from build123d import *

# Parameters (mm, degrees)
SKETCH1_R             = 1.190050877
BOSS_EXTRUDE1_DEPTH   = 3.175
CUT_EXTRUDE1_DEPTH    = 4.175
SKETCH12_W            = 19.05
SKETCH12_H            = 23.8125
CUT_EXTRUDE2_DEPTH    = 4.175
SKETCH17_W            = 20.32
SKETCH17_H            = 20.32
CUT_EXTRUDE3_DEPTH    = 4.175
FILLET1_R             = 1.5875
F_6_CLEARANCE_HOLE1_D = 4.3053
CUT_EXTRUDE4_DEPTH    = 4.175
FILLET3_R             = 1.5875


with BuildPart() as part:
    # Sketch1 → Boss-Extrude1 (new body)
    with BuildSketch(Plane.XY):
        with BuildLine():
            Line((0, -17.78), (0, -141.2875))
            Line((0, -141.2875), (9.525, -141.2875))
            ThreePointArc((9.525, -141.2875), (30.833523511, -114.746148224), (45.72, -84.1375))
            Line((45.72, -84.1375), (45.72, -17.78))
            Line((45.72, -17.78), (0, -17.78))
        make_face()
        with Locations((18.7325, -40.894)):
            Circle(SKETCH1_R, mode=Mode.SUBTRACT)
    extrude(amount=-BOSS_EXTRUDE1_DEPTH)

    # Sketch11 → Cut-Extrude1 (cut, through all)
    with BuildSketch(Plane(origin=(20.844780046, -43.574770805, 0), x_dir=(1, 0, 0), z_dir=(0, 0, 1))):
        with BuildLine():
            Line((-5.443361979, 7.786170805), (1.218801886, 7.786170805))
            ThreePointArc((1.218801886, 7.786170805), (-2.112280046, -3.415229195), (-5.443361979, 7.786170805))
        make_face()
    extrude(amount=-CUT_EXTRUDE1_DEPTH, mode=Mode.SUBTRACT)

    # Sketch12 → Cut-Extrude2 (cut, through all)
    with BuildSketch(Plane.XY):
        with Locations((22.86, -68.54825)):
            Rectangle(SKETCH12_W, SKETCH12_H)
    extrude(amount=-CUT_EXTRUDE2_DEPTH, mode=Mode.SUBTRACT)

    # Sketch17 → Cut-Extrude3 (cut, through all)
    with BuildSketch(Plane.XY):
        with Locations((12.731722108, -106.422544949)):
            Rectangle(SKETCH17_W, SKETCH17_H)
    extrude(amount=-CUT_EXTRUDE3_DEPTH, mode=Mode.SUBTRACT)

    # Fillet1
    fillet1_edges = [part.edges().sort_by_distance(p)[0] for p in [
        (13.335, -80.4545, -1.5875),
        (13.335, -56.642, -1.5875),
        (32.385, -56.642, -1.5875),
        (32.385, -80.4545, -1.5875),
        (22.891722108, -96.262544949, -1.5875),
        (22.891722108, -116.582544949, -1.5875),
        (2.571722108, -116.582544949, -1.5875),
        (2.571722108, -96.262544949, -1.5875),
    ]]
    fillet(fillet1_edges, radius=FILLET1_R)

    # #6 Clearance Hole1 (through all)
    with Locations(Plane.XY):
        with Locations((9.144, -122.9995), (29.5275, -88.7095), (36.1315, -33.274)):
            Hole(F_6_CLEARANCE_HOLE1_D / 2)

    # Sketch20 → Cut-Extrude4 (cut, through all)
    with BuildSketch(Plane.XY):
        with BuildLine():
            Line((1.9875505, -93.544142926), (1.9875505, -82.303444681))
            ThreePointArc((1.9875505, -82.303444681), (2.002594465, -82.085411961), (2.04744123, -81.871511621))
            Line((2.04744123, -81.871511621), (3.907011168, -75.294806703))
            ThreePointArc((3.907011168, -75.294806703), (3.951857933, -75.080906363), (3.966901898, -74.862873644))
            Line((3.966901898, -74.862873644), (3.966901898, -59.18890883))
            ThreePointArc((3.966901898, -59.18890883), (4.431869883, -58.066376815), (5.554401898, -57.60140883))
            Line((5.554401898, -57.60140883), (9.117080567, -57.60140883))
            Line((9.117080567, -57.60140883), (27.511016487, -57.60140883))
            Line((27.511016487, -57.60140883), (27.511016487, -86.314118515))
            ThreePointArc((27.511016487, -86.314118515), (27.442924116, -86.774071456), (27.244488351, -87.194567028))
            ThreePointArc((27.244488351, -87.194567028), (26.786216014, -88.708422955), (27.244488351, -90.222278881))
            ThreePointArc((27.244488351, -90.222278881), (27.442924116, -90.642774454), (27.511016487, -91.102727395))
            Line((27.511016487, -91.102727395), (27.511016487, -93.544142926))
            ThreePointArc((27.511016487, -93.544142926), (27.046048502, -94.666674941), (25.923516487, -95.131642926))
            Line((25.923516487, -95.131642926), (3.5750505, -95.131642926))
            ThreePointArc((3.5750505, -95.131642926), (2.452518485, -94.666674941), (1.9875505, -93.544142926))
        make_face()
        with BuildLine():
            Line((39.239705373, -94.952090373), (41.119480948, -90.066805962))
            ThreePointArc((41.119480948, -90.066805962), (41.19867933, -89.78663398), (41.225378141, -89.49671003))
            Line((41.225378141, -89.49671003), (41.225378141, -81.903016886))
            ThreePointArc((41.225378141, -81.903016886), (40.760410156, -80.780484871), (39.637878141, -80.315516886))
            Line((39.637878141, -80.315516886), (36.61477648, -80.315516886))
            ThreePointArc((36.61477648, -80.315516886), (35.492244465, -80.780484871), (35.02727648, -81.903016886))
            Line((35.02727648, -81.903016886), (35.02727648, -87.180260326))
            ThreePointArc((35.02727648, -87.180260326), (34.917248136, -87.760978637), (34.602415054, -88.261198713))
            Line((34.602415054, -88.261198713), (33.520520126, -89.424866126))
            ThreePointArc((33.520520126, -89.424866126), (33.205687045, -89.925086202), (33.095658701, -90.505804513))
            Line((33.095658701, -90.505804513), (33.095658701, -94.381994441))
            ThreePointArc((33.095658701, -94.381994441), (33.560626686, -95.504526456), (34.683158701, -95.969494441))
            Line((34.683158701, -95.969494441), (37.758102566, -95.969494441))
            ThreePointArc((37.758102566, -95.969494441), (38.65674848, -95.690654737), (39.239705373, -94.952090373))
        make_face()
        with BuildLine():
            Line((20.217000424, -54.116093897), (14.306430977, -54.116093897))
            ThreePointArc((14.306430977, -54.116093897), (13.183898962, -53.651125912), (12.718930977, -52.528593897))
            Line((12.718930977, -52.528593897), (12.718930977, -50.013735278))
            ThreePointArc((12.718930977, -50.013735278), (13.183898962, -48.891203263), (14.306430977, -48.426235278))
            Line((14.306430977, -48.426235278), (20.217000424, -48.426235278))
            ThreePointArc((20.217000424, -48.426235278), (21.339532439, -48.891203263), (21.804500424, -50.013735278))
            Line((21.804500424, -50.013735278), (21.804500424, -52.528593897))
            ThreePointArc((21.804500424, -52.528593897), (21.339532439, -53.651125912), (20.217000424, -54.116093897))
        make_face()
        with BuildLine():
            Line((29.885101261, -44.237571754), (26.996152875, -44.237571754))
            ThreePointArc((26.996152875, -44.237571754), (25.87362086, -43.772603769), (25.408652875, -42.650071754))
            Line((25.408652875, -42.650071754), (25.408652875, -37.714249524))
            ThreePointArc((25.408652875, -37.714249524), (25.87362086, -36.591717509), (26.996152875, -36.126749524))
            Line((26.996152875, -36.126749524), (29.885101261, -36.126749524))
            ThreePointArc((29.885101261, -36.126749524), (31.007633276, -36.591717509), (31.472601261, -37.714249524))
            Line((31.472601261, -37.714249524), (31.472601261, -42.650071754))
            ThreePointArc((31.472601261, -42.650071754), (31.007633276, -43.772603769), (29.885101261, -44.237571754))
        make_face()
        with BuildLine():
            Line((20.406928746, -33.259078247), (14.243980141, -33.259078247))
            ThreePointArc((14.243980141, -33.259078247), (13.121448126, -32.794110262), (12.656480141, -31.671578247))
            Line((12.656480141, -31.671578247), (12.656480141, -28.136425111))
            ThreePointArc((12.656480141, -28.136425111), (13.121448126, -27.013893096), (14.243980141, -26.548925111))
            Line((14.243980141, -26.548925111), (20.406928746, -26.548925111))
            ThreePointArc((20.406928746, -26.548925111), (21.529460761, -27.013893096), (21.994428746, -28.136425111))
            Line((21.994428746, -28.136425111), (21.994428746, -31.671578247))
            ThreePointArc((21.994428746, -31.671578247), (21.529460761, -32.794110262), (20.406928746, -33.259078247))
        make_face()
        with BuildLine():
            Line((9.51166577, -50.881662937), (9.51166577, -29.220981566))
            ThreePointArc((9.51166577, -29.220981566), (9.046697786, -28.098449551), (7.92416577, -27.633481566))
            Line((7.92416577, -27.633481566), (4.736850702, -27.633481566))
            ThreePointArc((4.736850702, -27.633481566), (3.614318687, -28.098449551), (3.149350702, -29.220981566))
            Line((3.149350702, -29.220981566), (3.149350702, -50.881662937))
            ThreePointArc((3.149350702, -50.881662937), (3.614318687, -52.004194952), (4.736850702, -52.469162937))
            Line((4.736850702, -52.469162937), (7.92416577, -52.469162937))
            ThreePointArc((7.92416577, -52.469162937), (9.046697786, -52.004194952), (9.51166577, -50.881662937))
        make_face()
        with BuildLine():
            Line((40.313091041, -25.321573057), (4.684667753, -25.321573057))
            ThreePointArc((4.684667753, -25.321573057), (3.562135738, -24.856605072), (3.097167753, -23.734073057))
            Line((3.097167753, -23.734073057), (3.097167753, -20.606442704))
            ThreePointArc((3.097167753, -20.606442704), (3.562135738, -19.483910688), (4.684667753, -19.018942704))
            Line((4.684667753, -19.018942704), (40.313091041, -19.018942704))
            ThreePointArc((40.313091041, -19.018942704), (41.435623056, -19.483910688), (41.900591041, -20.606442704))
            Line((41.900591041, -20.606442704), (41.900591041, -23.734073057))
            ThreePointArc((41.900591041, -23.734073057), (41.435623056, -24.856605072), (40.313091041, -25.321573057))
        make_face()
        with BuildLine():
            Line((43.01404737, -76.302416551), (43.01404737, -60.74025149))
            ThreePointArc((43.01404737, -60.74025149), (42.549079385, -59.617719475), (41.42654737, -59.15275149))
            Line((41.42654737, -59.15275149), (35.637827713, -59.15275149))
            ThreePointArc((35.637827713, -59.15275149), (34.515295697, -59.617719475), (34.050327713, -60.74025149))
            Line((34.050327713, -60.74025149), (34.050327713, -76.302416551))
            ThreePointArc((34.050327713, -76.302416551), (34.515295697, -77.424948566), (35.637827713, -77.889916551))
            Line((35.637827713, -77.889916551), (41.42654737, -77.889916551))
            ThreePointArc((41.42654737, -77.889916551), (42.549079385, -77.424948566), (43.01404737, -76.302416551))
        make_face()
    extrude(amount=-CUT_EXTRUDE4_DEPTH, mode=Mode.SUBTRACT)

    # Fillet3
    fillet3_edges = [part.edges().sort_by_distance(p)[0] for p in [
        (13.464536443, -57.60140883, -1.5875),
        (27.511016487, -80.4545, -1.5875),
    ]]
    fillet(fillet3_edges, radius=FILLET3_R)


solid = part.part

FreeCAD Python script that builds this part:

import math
import FreeCAD as App
import Part
import Sketcher

V = App.Vector
Q = App.Units.Quantity


def edges_at(feature, points):
    """Names of the edges that pass closest to the given points."""
    edges = feature.Shape.Edges
    near = lambda p: min(range(len(edges)), key=lambda i: edges[i].distToShape(Part.Vertex(*p))[0])
    return sorted({f"Edge{near(p) + 1}" for p in points})

doc = App.newDocument("Part")
params = doc.addObject("Spreadsheet::Sheet", "Params")
for row, (alias, value) in enumerate([
    ("sketch1_radius", "6 in"),
    ("sketch1_width", "1.8 in"),
    ("sketch1_width2", "0.375 in"),
    ("pad1_length", "0.125 in"),
    ("sketch2_radius", "0.24 in"),
    ("sketch3_width", "0.75 in"),
    ("sketch3_height", "0.9375 in"),
    ("sketch4_width", "0.8 in"),
    ("fillet_radius", "0.0625 in"),
    ("hole_diameter", "0.1695 in"),
    ("sketch6_radius", "0.0625 in"),
    ("fillet2_radius", "0.0625 in"),
], start=1):
    params.set(f"A{row}", alias)
    params.set(f"B{row}", "=" + value)
    params.setAlias(f"B{row}", alias)

body = doc.addObject("PartDesign::Body", "Body")

# Sketch on XY plane
sketch1 = body.newObject("Sketcher::SketchObject", "Sketch")
sketch1.AttachmentSupport = (doc.getObject("XY_Plane"), [""])
sketch1.MapMode = "FlatFace"
sketch1.addGeometry(Part.LineSegment(V(0, -17.8, 0), V(0, -141.3, 0)), False)
sketch1.addGeometry(Part.LineSegment(V(0, -141.3, 0), V(9.5, -141.3, 0)), False)
sketch1.addGeometry(Part.ArcOfCircle(Part.Circle(V(-97.9, -33.2, 0), V(0, 0, 1), 152.4), math.radians(-45), math.radians(-20)), False)
sketch1.addGeometry(Part.LineSegment(V(45.7, -84.1, 0), V(45.7, -17.8, 0)), False)
sketch1.addGeometry(Part.LineSegment(V(45.7, -17.8, 0), V(0, -17.8, 0)), False)
sketch1.addGeometry(Part.Circle(V(18.7, -40.9, 0), V(0, 0, 1), 1.2), False)
sketch1.addConstraint(Sketcher.Constraint("Coincident", 0, 2, 1, 1))
sketch1.addConstraint(Sketcher.Constraint("Coincident", 1, 2, 2, 1))
sketch1.addConstraint(Sketcher.Constraint("Coincident", 2, 2, 3, 1))
sketch1.addConstraint(Sketcher.Constraint("Coincident", 3, 2, 4, 1))
sketch1.addConstraint(Sketcher.Constraint("Coincident", 4, 2, 0, 1))
sketch1.addConstraint(Sketcher.Constraint("Vertical", 0))
sketch1.addConstraint(Sketcher.Constraint("Horizontal", 1))
sketch1.addConstraint(Sketcher.Constraint("Vertical", 3))
sketch1.addConstraint(Sketcher.Constraint("Horizontal", 4))
sketch1.addConstraint(Sketcher.Constraint("PointOnObject", 0, 2, -2))
sketch1.addConstraint(Sketcher.Constraint("Radius", 2, Q("6 in")))
sketch1.addConstraint(Sketcher.Constraint("DistanceX", 4, 2, 4, 1, Q("1.8 in")))
sketch1.addConstraint(Sketcher.Constraint("DistanceY", 3, 2, -1, 1, Q("0.7 in")))
sketch1.addConstraint(Sketcher.Constraint("Diameter", 5, 2.380102))
sketch1.addConstraint(Sketcher.Constraint("DistanceX", 1, 1, 1, 2, Q("0.375 in")))
sketch1.addConstraint(Sketcher.Constraint("DistanceY", 5, 3, -1, 1, Q("1.61 in")))
sketch1.addConstraint(Sketcher.Constraint("DistanceY", 1, 2, 2, 2, Q("2.25 in")))
sketch1.addConstraint(Sketcher.Constraint("DistanceY", 0, 2, 0, 1, Q("4.8625 in")))
sketch1.addConstraint(Sketcher.Constraint("DistanceX", 5, 3, 2, 2, Q("1.0625 in")))
sketch1.setExpression("Constraints[10]", "Params.sketch1_radius")
sketch1.setExpression("Constraints[11]", "Params.sketch1_width")
sketch1.setExpression("Constraints[14]", "Params.sketch1_width2")
pad1 = body.newObject("PartDesign::Pad", "Pad")
pad1.Profile = sketch1
pad1.setExpression("Length", "Params.pad1_length")
pad1.Reversed = True

# Sketch on XY plane
sketch2 = body.newObject("Sketcher::SketchObject", "Sketch001")
sketch2.AttachmentSupport = (doc.getObject("XY_Plane"), [""])
sketch2.MapMode = "FlatFace"
sketch2.addGeometry(Part.LineSegment(V(22, -36, 0), V(15, -36, 0)), False)
sketch2.addGeometry(Part.ArcOfCircle(Part.Circle(V(19, -41, 0), V(0, 0, 1), 6), math.radians(123), math.radians(417)), False)
sketch2.addConstraint(Sketcher.Constraint("Coincident", 0, 1, 1, 2))
sketch2.addConstraint(Sketcher.Constraint("Coincident", 1, 1, 0, 2))
sketch2.addConstraint(Sketcher.Constraint("Horizontal", 0))
sketch2.addConstraint(Sketcher.Constraint("Radius", 1, Q("0.24 in")))
sketch2.addConstraint(Sketcher.Constraint("DistanceY", 1, 3, -1, 1, Q("1.61 in")))
sketch2.addConstraint(Sketcher.Constraint("DistanceY", 0, 1, -1, 1, Q("1.409 in")))
sketch2.addConstraint(Sketcher.Constraint("DistanceX", -1, 1, 1, 3, Q("0.7375 in")))
sketch2.setExpression("Constraints[3]", "Params.sketch2_radius")
pocket1 = body.newObject("PartDesign::Pocket", "Pocket")
pocket1.Profile = sketch2
pocket1.Type = "ThroughAll"

# Sketch on XY plane
sketch3 = body.newObject("Sketcher::SketchObject", "Sketch002")
sketch3.AttachmentSupport = (doc.getObject("XY_Plane"), [""])
sketch3.MapMode = "FlatFace"
sketch3.addGeometry(Part.LineSegment(V(13, -57, 0), V(13, -80, 0)), False)
sketch3.addGeometry(Part.LineSegment(V(13, -80, 0), V(32, -80, 0)), False)
sketch3.addGeometry(Part.LineSegment(V(32, -80, 0), V(32, -57, 0)), False)
sketch3.addGeometry(Part.LineSegment(V(32, -57, 0), V(13, -57, 0)), False)
sketch3.addConstraint(Sketcher.Constraint("Coincident", 0, 2, 1, 1))
sketch3.addConstraint(Sketcher.Constraint("Coincident", 1, 2, 2, 1))
sketch3.addConstraint(Sketcher.Constraint("Coincident", 2, 2, 3, 1))
sketch3.addConstraint(Sketcher.Constraint("Coincident", 3, 2, 0, 1))
sketch3.addConstraint(Sketcher.Constraint("Vertical", 0))
sketch3.addConstraint(Sketcher.Constraint("Horizontal", 1))
sketch3.addConstraint(Sketcher.Constraint("Vertical", 2))
sketch3.addConstraint(Sketcher.Constraint("Horizontal", 3))
sketch3.addConstraint(Sketcher.Constraint("DistanceX", 1, 1, 1, 2, Q("0.75 in")))
sketch3.addConstraint(Sketcher.Constraint("DistanceY", 0, 2, 0, 1, Q("0.9375 in")))
sketch3.addConstraint(Sketcher.Constraint("DistanceY", 2, 2, -1, 1, Q("2.23 in")))
sketch3.addConstraint(Sketcher.Constraint("DistanceX", -1, 1, 0, 2, Q("0.525 in")))
sketch3.setExpression("Constraints[8]", "Params.sketch3_width")
sketch3.setExpression("Constraints[9]", "Params.sketch3_height")
pocket2 = body.newObject("PartDesign::Pocket", "Pocket001")
pocket2.Profile = sketch3
pocket2.Type = "ThroughAll"

# Sketch on XY plane
sketch4 = body.newObject("Sketcher::SketchObject", "Sketch003")
sketch4.AttachmentSupport = (doc.getObject("XY_Plane"), [""])
sketch4.MapMode = "FlatFace"
sketch4.addGeometry(Part.LineSegment(V(3, -96, 0), V(3, -117, 0)), False)
sketch4.addGeometry(Part.LineSegment(V(3, -117, 0), V(23, -117, 0)), False)
sketch4.addGeometry(Part.LineSegment(V(23, -117, 0), V(23, -96, 0)), False)
sketch4.addGeometry(Part.LineSegment(V(23, -96, 0), V(3, -96, 0)), False)
sketch4.addConstraint(Sketcher.Constraint("Coincident", 0, 2, 1, 1))
sketch4.addConstraint(Sketcher.Constraint("Coincident", 1, 2, 2, 1))
sketch4.addConstraint(Sketcher.Constraint("Coincident", 2, 2, 3, 1))
sketch4.addConstraint(Sketcher.Constraint("Coincident", 3, 2, 0, 1))
sketch4.addConstraint(Sketcher.Constraint("Vertical", 0))
sketch4.addConstraint(Sketcher.Constraint("Horizontal", 1))
sketch4.addConstraint(Sketcher.Constraint("Vertical", 2))
sketch4.addConstraint(Sketcher.Constraint("Horizontal", 3))
sketch4.addConstraint(Sketcher.Constraint("Equal", 3, 0))
sketch4.addConstraint(Sketcher.Constraint("DistanceX", 1, 1, 1, 2, Q("0.8 in")))
sketch4.addConstraint(Sketcher.Constraint("DistanceX", -1, 1, 0, 2, 2.571722))
sketch4.addConstraint(Sketcher.Constraint("DistanceY", 0, 2, -1, 1, 116.582545))
sketch4.setExpression("Constraints[9]", "Params.sketch4_width")
pocket3 = body.newObject("PartDesign::Pocket", "Pocket002")
pocket3.Profile = sketch4
pocket3.Type = "ThroughAll"
doc.recompute()

fillet = body.newObject("PartDesign::Fillet", "Fillet")
fillet.Base = (pocket3, edges_at(pocket3, [
    (13.335, -80.454, -1.587),
    (13.335, -56.642, -1.587),
    (32.385, -56.642, -1.587),
    (32.385, -80.454, -1.587),
    (22.892, -96.263, -1.587),
    (22.892, -116.583, -1.587),
    (2.572, -116.583, -1.587),
    (2.572, -96.263, -1.587),
]))
fillet.setExpression("Radius", "Params.fillet_radius")

# Sketch on XY plane
sketch5 = body.newObject("Sketcher::SketchObject", "Sketch004")
sketch5.AttachmentSupport = (doc.getObject("XY_Plane"), [""])
sketch5.MapMode = "FlatFace"
sketch5.addGeometry(Part.Circle(V(9.1, -123, 0), V(0, 0, 1), 2.2), False)
sketch5.addGeometry(Part.Circle(V(29.5, -88.7, 0), V(0, 0, 1), 2.2), False)
sketch5.addGeometry(Part.Circle(V(36.1, -33.3, 0), V(0, 0, 1), 2.2), False)
sketch5.addConstraint(Sketcher.Constraint("Equal", 0, 1))
sketch5.addConstraint(Sketcher.Constraint("Equal", 1, 2))
sketch5.addConstraint(Sketcher.Constraint("Diameter", 0, Q("0.1695 in")))
sketch5.addConstraint(Sketcher.Constraint("DistanceX", -1, 1, 0, 3, Q("0.36 in")))
sketch5.addConstraint(Sketcher.Constraint("DistanceY", 2, 3, -1, 1, Q("1.31 in")))
sketch5.addConstraint(Sketcher.Constraint("DistanceY", 0, 3, 1, 3, Q("1.35 in")))
sketch5.addConstraint(Sketcher.Constraint("DistanceX", 1, 3, 2, 3, Q("0.26 in")))
sketch5.addConstraint(Sketcher.Constraint("DistanceX", 0, 3, 2, 3, Q("1.0625 in")))
sketch5.addConstraint(Sketcher.Constraint("DistanceY", 0, 3, -1, 1, Q("4.8425 in")))
doc.recompute()
hole = body.newObject("PartDesign::Hole", "Hole")
hole.Profile = sketch5
hole.ThreadType = "None"
hole.setExpression("Diameter", "Params.hole_diameter")
hole.DepthType = "ThroughAll"

# Sketch on XY plane
sketch6 = body.newObject("Sketcher::SketchObject", "Sketch005")
sketch6.AttachmentSupport = (doc.getObject("XY_Plane"), [""])
sketch6.MapMode = "FlatFace"
sketch6.addGeometry(Part.LineSegment(V(1.99, -82.3, 0), V(1.99, -93.54, 0)), False)
sketch6.addGeometry(Part.ArcOfCircle(Part.Circle(V(3.58, -93.54, 0), V(0, 0, 1), 1.59), math.radians(180), math.radians(270)), False)
sketch6.addGeometry(Part.LineSegment(V(3.58, -95.13, 0), V(25.92, -95.13, 0)), False)
sketch6.addGeometry(Part.ArcOfCircle(Part.Circle(V(25.92, -93.54, 0), V(0, 0, 1), 1.59), math.radians(-90), math.radians(0)), False)
sketch6.addGeometry(Part.LineSegment(V(27.51, -93.54, 0), V(27.51, -91.1, 0)), False)
sketch6.addGeometry(Part.ArcOfCircle(Part.Circle(V(25.92, -91.1, 0), V(0, 0, 1), 1.59), math.radians(0), math.radians(34)), False)
sketch6.addGeometry(Part.ArcOfCircle(Part.Circle(V(29.52, -88.71, 0), V(0, 0, 1), 2.73), math.radians(146), math.radians(214)), False)
sketch6.addGeometry(Part.ArcOfCircle(Part.Circle(V(25.92, -86.31, 0), V(0, 0, 1), 1.59), math.radians(-34), math.radians(0)), False)
sketch6.addGeometry(Part.LineSegment(V(27.51, -86.31, 0), V(27.51, -57.6, 0)), False)
sketch6.addGeometry(Part.LineSegment(V(27.51, -57.6, 0), V(5.55, -57.6, 0)), False)
sketch6.addGeometry(Part.ArcOfCircle(Part.Circle(V(5.55, -59.19, 0), V(0, 0, 1), 1.59), math.radians(90), math.radians(180)), False)
sketch6.addGeometry(Part.LineSegment(V(3.97, -59.19, 0), V(3.97, -74.86, 0)), False)
sketch6.addGeometry(Part.ArcOfCircle(Part.Circle(V(2.38, -74.86, 0), V(0, 0, 1), 1.59), math.radians(-15.79), math.radians(0)), False)
sketch6.addGeometry(Part.LineSegment(V(3.91, -75.29, 0), V(2.05, -81.87, 0)), False)
sketch6.addGeometry(Part.ArcOfCircle(Part.Circle(V(3.58, -82.3, 0), V(0, 0, 1), 1.59), math.radians(164.21), math.radians(180)), False)
sketch6.addGeometry(Part.LineSegment(V(39.24, -94.95, 0), V(41.12, -90.07, 0)), False)
sketch6.addGeometry(Part.ArcOfCircle(Part.Circle(V(39.64, -89.5, 0), V(0, 0, 1), 1.59), math.radians(-21), math.radians(0)), False)
sketch6.addGeometry(Part.LineSegment(V(41.23, -89.5, 0), V(41.23, -81.9, 0)), False)
sketch6.addGeometry(Part.ArcOfCircle(Part.Circle(V(39.64, -81.9, 0), V(0, 0, 1), 1.59), math.radians(0), math.radians(90)), False)
sketch6.addGeometry(Part.LineSegment(V(39.64, -80.32, 0), V(36.61, -80.32, 0)), False)
sketch6.addGeometry(Part.ArcOfCircle(Part.Circle(V(36.61, -81.9, 0), V(0, 0, 1), 1.59), math.radians(90), math.radians(180)), False)
sketch6.addGeometry(Part.LineSegment(V(35.03, -81.9, 0), V(35.03, -87.18, 0)), False)
sketch6.addGeometry(Part.ArcOfCircle(Part.Circle(V(33.44, -87.18, 0), V(0, 0, 1), 1.59), math.radians(-43), math.radians(0)), False)
sketch6.addGeometry(Part.LineSegment(V(34.6, -88.26, 0), V(33.52, -89.42, 0)), False)
sketch6.addGeometry(Part.ArcOfCircle(Part.Circle(V(34.68, -90.51, 0), V(0, 0, 1), 1.59), math.radians(137), math.radians(180)), False)
sketch6.addGeometry(Part.LineSegment(V(33.1, -90.51, 0), V(33.1, -94.38, 0)), False)
sketch6.addGeometry(Part.ArcOfCircle(Part.Circle(V(34.68, -94.38, 0), V(0, 0, 1), 1.59), math.radians(180), math.radians(270)), False)
sketch6.addGeometry(Part.LineSegment(V(34.68, -95.97, 0), V(37.76, -95.97, 0)), False)
sketch6.addGeometry(Part.ArcOfCircle(Part.Circle(V(37.76, -94.38, 0), V(0, 0, 1), 1.59), math.radians(-90), math.radians(-21)), False)
sketch6.addGeometry(Part.LineSegment(V(14.31, -54.12, 0), V(20.22, -54.12, 0)), False)
sketch6.addGeometry(Part.ArcOfCircle(Part.Circle(V(20.22, -52.53, 0), V(0, 0, 1), 1.59), math.radians(-90), math.radians(0)), False)
sketch6.addGeometry(Part.LineSegment(V(21.8, -52.53, 0), V(21.8, -50.01, 0)), False)
sketch6.addGeometry(Part.ArcOfCircle(Part.Circle(V(20.22, -50.01, 0), V(0, 0, 1), 1.59), math.radians(0), math.radians(90)), False)
sketch6.addGeometry(Part.LineSegment(V(20.22, -48.43, 0), V(14.31, -48.43, 0)), False)
sketch6.addGeometry(Part.ArcOfCircle(Part.Circle(V(14.31, -50.01, 0), V(0, 0, 1), 1.59), math.radians(90), math.radians(180)), False)
sketch6.addGeometry(Part.LineSegment(V(12.72, -50.01, 0), V(12.72, -52.53, 0)), False)
sketch6.addGeometry(Part.ArcOfCircle(Part.Circle(V(14.31, -52.53, 0), V(0, 0, 1), 1.59), math.radians(180), math.radians(270)), False)
sketch6.addGeometry(Part.LineSegment(V(27, -44.24, 0), V(29.89, -44.24, 0)), False)
sketch6.addGeometry(Part.ArcOfCircle(Part.Circle(V(29.89, -42.65, 0), V(0, 0, 1), 1.59), math.radians(-90), math.radians(0)), False)
sketch6.addGeometry(Part.LineSegment(V(31.47, -42.65, 0), V(31.47, -37.71, 0)), False)
sketch6.addGeometry(Part.ArcOfCircle(Part.Circle(V(29.89, -37.71, 0), V(0, 0, 1), 1.59), math.radians(0), math.radians(90)), False)
sketch6.addGeometry(Part.LineSegment(V(29.89, -36.13, 0), V(27, -36.13, 0)), False)
sketch6.addGeometry(Part.ArcOfCircle(Part.Circle(V(27, -37.71, 0), V(0, 0, 1), 1.59), math.radians(90), math.radians(180)), False)
sketch6.addGeometry(Part.LineSegment(V(25.41, -37.71, 0), V(25.41, -42.65, 0)), False)
sketch6.addGeometry(Part.ArcOfCircle(Part.Circle(V(27, -42.65, 0), V(0, 0, 1), 1.59), math.radians(180), math.radians(270)), False)
sketch6.addGeometry(Part.LineSegment(V(14.24, -33.26, 0), V(20.41, -33.26, 0)), False)
sketch6.addGeometry(Part.ArcOfCircle(Part.Circle(V(20.41, -31.67, 0), V(0, 0, 1), 1.59), math.radians(-90), math.radians(0)), False)
sketch6.addGeometry(Part.LineSegment(V(21.99, -31.67, 0), V(21.99, -28.14, 0)), False)
sketch6.addGeometry(Part.ArcOfCircle(Part.Circle(V(20.41, -28.14, 0), V(0, 0, 1), 1.59), math.radians(0), math.radians(90)), False)
sketch6.addGeometry(Part.LineSegment(V(20.41, -26.55, 0), V(14.24, -26.55, 0)), False)
sketch6.addGeometry(Part.ArcOfCircle(Part.Circle(V(14.24, -28.14, 0), V(0, 0, 1), 1.59), math.radians(90), math.radians(180)), False)
sketch6.addGeometry(Part.LineSegment(V(12.66, -28.14, 0), V(12.66, -31.67, 0)), False)
sketch6.addGeometry(Part.ArcOfCircle(Part.Circle(V(14.24, -31.67, 0), V(0, 0, 1), 1.59), math.radians(180), math.radians(270)), False)
sketch6.addGeometry(Part.LineSegment(V(9.51, -50.88, 0), V(9.51, -29.22, 0)), False)
sketch6.addGeometry(Part.ArcOfCircle(Part.Circle(V(7.92, -29.22, 0), V(0, 0, 1), 1.59), math.radians(0), math.radians(90)), False)
sketch6.addGeometry(Part.LineSegment(V(7.92, -27.63, 0), V(4.74, -27.63, 0)), False)
sketch6.addGeometry(Part.ArcOfCircle(Part.Circle(V(4.74, -29.22, 0), V(0, 0, 1), 1.59), math.radians(90), math.radians(180)), False)
sketch6.addGeometry(Part.LineSegment(V(3.15, -29.22, 0), V(3.15, -50.88, 0)), False)
sketch6.addGeometry(Part.ArcOfCircle(Part.Circle(V(4.74, -50.88, 0), V(0, 0, 1), 1.59), math.radians(180), math.radians(270)), False)
sketch6.addGeometry(Part.LineSegment(V(4.74, -52.47, 0), V(7.92, -52.47, 0)), False)
sketch6.addGeometry(Part.ArcOfCircle(Part.Circle(V(7.92, -50.88, 0), V(0, 0, 1), 1.59), math.radians(-90), math.radians(0)), False)
sketch6.addGeometry(Part.LineSegment(V(4.68, -25.32, 0), V(40.31, -25.32, 0)), False)
sketch6.addGeometry(Part.ArcOfCircle(Part.Circle(V(40.31, -23.73, 0), V(0, 0, 1), 1.59), math.radians(-90), math.radians(0)), False)
sketch6.addGeometry(Part.LineSegment(V(41.9, -23.73, 0), V(41.9, -20.61, 0)), False)
sketch6.addGeometry(Part.ArcOfCircle(Part.Circle(V(40.31, -20.61, 0), V(0, 0, 1), 1.59), math.radians(0), math.radians(90)), False)
sketch6.addGeometry(Part.LineSegment(V(40.31, -19.02, 0), V(4.68, -19.02, 0)), False)
sketch6.addGeometry(Part.ArcOfCircle(Part.Circle(V(4.68, -20.61, 0), V(0, 0, 1), 1.59), math.radians(90), math.radians(180)), False)
sketch6.addGeometry(Part.LineSegment(V(3.1, -20.61, 0), V(3.1, -23.73, 0)), False)
sketch6.addGeometry(Part.ArcOfCircle(Part.Circle(V(4.68, -23.73, 0), V(0, 0, 1), 1.59), math.radians(180), math.radians(270)), False)
sketch6.addGeometry(Part.LineSegment(V(43.01, -76.3, 0), V(43.01, -60.74, 0)), False)
sketch6.addGeometry(Part.ArcOfCircle(Part.Circle(V(41.43, -60.74, 0), V(0, 0, 1), 1.59), math.radians(0), math.radians(90)), False)
sketch6.addGeometry(Part.LineSegment(V(41.43, -59.15, 0), V(35.64, -59.15, 0)), False)
sketch6.addGeometry(Part.ArcOfCircle(Part.Circle(V(35.64, -60.74, 0), V(0, 0, 1), 1.59), math.radians(90), math.radians(180)), False)
sketch6.addGeometry(Part.LineSegment(V(34.05, -60.74, 0), V(34.05, -76.3, 0)), False)
sketch6.addGeometry(Part.ArcOfCircle(Part.Circle(V(35.64, -76.3, 0), V(0, 0, 1), 1.59), math.radians(180), math.radians(270)), False)
sketch6.addGeometry(Part.LineSegment(V(35.64, -77.89, 0), V(41.43, -77.89, 0)), False)
sketch6.addGeometry(Part.ArcOfCircle(Part.Circle(V(41.43, -76.3, 0), V(0, 0, 1), 1.59), math.radians(-90), math.radians(0)), False)
sketch6.addConstraint(Sketcher.Constraint("Tangent", 0, 2, 1, 1))
sketch6.addConstraint(Sketcher.Constraint("Tangent", 1, 2, 2, 1))
sketch6.addConstraint(Sketcher.Constraint("Tangent", 2, 2, 3, 1))
sketch6.addConstraint(Sketcher.Constraint("Tangent", 3, 2, 4, 1))
sketch6.addConstraint(Sketcher.Constraint("Tangent", 4, 2, 5, 1))
sketch6.addConstraint(Sketcher.Constraint("Tangent", 5, 2, 6, 2))
sketch6.addConstraint(Sketcher.Constraint("Tangent", 6, 1, 7, 1))
sketch6.addConstraint(Sketcher.Constraint("Tangent", 7, 2, 8, 1))
sketch6.addConstraint(Sketcher.Constraint("Coincident", 8, 2, 9, 1))
sketch6.addConstraint(Sketcher.Constraint("Tangent", 9, 2, 10, 1))
sketch6.addConstraint(Sketcher.Constraint("Tangent", 10, 2, 11, 1))
sketch6.addConstraint(Sketcher.Constraint("Tangent", 11, 2, 12, 2))
sketch6.addConstraint(Sketcher.Constraint("Tangent", 12, 1, 13, 1))
sketch6.addConstraint(Sketcher.Constraint("Tangent", 13, 2, 14, 1))
sketch6.addConstraint(Sketcher.Constraint("Tangent", 14, 2, 0, 1))
sketch6.addConstraint(Sketcher.Constraint("Tangent", 15, 2, 16, 1))
sketch6.addConstraint(Sketcher.Constraint("Tangent", 16, 2, 17, 1))
sketch6.addConstraint(Sketcher.Constraint("Tangent", 17, 2, 18, 1))
sketch6.addConstraint(Sketcher.Constraint("Tangent", 18, 2, 19, 1))
sketch6.addConstraint(Sketcher.Constraint("Tangent", 19, 2, 20, 1))
sketch6.addConstraint(Sketcher.Constraint("Tangent", 20, 2, 21, 1))
sketch6.addConstraint(Sketcher.Constraint("Tangent", 21, 2, 22, 2))
sketch6.addConstraint(Sketcher.Constraint("Tangent", 22, 1, 23, 1))
sketch6.addConstraint(Sketcher.Constraint("Tangent", 23, 2, 24, 1))
sketch6.addConstraint(Sketcher.Constraint("Tangent", 24, 2, 25, 1))
sketch6.addConstraint(Sketcher.Constraint("Tangent", 25, 2, 26, 1))
sketch6.addConstraint(Sketcher.Constraint("Tangent", 26, 2, 27, 1))
sketch6.addConstraint(Sketcher.Constraint("Tangent", 27, 2, 28, 1))
sketch6.addConstraint(Sketcher.Constraint("Tangent", 28, 2, 15, 1))
sketch6.addConstraint(Sketcher.Constraint("Tangent", 29, 2, 30, 1))
sketch6.addConstraint(Sketcher.Constraint("Tangent", 30, 2, 31, 1))
sketch6.addConstraint(Sketcher.Constraint("Tangent", 31, 2, 32, 1))
sketch6.addConstraint(Sketcher.Constraint("Tangent", 32, 2, 33, 1))
sketch6.addConstraint(Sketcher.Constraint("Tangent", 33, 2, 34, 1))
sketch6.addConstraint(Sketcher.Constraint("Tangent", 34, 2, 35, 1))
sketch6.addConstraint(Sketcher.Constraint("Tangent", 35, 2, 36, 1))
sketch6.addConstraint(Sketcher.Constraint("Tangent", 36, 2, 29, 1))
sketch6.addConstraint(Sketcher.Constraint("Tangent", 37, 2, 38, 1))
sketch6.addConstraint(Sketcher.Constraint("Tangent", 38, 2, 39, 1))
sketch6.addConstraint(Sketcher.Constraint("Tangent", 39, 2, 40, 1))
sketch6.addConstraint(Sketcher.Constraint("Tangent", 40, 2, 41, 1))
sketch6.addConstraint(Sketcher.Constraint("Tangent", 41, 2, 42, 1))
sketch6.addConstraint(Sketcher.Constraint("Tangent", 42, 2, 43, 1))
sketch6.addConstraint(Sketcher.Constraint("Tangent", 43, 2, 44, 1))
sketch6.addConstraint(Sketcher.Constraint("Tangent", 44, 2, 37, 1))
sketch6.addConstraint(Sketcher.Constraint("Tangent", 45, 2, 46, 1))
sketch6.addConstraint(Sketcher.Constraint("Tangent", 46, 2, 47, 1))
sketch6.addConstraint(Sketcher.Constraint("Tangent", 47, 2, 48, 1))
sketch6.addConstraint(Sketcher.Constraint("Tangent", 48, 2, 49, 1))
sketch6.addConstraint(Sketcher.Constraint("Tangent", 49, 2, 50, 1))
sketch6.addConstraint(Sketcher.Constraint("Tangent", 50, 2, 51, 1))
sketch6.addConstraint(Sketcher.Constraint("Tangent", 51, 2, 52, 1))
sketch6.addConstraint(Sketcher.Constraint("Tangent", 52, 2, 45, 1))
sketch6.addConstraint(Sketcher.Constraint("Tangent", 53, 2, 54, 1))
sketch6.addConstraint(Sketcher.Constraint("Tangent", 54, 2, 55, 1))
sketch6.addConstraint(Sketcher.Constraint("Tangent", 55, 2, 56, 1))
sketch6.addConstraint(Sketcher.Constraint("Tangent", 56, 2, 57, 1))
sketch6.addConstraint(Sketcher.Constraint("Tangent", 57, 2, 58, 1))
sketch6.addConstraint(Sketcher.Constraint("Tangent", 58, 2, 59, 1))
sketch6.addConstraint(Sketcher.Constraint("Tangent", 59, 2, 60, 1))
sketch6.addConstraint(Sketcher.Constraint("Tangent", 60, 2, 53, 1))
sketch6.addConstraint(Sketcher.Constraint("Tangent", 61, 2, 62, 1))
sketch6.addConstraint(Sketcher.Constraint("Tangent", 62, 2, 63, 1))
sketch6.addConstraint(Sketcher.Constraint("Tangent", 63, 2, 64, 1))
sketch6.addConstraint(Sketcher.Constraint("Tangent", 64, 2, 65, 1))
sketch6.addConstraint(Sketcher.Constraint("Tangent", 65, 2, 66, 1))
sketch6.addConstraint(Sketcher.Constraint("Tangent", 66, 2, 67, 1))
sketch6.addConstraint(Sketcher.Constraint("Tangent", 67, 2, 68, 1))
sketch6.addConstraint(Sketcher.Constraint("Tangent", 68, 2, 61, 1))
sketch6.addConstraint(Sketcher.Constraint("Tangent", 69, 2, 70, 1))
sketch6.addConstraint(Sketcher.Constraint("Tangent", 70, 2, 71, 1))
sketch6.addConstraint(Sketcher.Constraint("Tangent", 71, 2, 72, 1))
sketch6.addConstraint(Sketcher.Constraint("Tangent", 72, 2, 73, 1))
sketch6.addConstraint(Sketcher.Constraint("Tangent", 73, 2, 74, 1))
sketch6.addConstraint(Sketcher.Constraint("Tangent", 74, 2, 75, 1))
sketch6.addConstraint(Sketcher.Constraint("Tangent", 75, 2, 76, 1))
sketch6.addConstraint(Sketcher.Constraint("Tangent", 76, 2, 69, 1))
sketch6.addConstraint(Sketcher.Constraint("Vertical", 0))
sketch6.addConstraint(Sketcher.Constraint("Horizontal", 2))
sketch6.addConstraint(Sketcher.Constraint("Vertical", 4))
sketch6.addConstraint(Sketcher.Constraint("Vertical", 8))
sketch6.addConstraint(Sketcher.Constraint("Horizontal", 9))
sketch6.addConstraint(Sketcher.Constraint("Vertical", 11))
sketch6.addConstraint(Sketcher.Constraint("Vertical", 17))
sketch6.addConstraint(Sketcher.Constraint("Horizontal", 19))
sketch6.addConstraint(Sketcher.Constraint("Vertical", 21))
sketch6.addConstraint(Sketcher.Constraint("Vertical", 25))
sketch6.addConstraint(Sketcher.Constraint("Horizontal", 27))
sketch6.addConstraint(Sketcher.Constraint("Horizontal", 29))
sketch6.addConstraint(Sketcher.Constraint("Vertical", 31))
sketch6.addConstraint(Sketcher.Constraint("Horizontal", 33))
sketch6.addConstraint(Sketcher.Constraint("Vertical", 35))
sketch6.addConstraint(Sketcher.Constraint("Horizontal", 37))
sketch6.addConstraint(Sketcher.Constraint("Vertical", 39))
sketch6.addConstraint(Sketcher.Constraint("Horizontal", 41))
sketch6.addConstraint(Sketcher.Constraint("Vertical", 43))
sketch6.addConstraint(Sketcher.Constraint("Horizontal", 45))
sketch6.addConstraint(Sketcher.Constraint("Vertical", 47))
sketch6.addConstraint(Sketcher.Constraint("Horizontal", 49))
sketch6.addConstraint(Sketcher.Constraint("Vertical", 51))
sketch6.addConstraint(Sketcher.Constraint("Vertical", 53))
sketch6.addConstraint(Sketcher.Constraint("Horizontal", 55))
sketch6.addConstraint(Sketcher.Constraint("Vertical", 57))
sketch6.addConstraint(Sketcher.Constraint("Horizontal", 59))
sketch6.addConstraint(Sketcher.Constraint("Horizontal", 61))
sketch6.addConstraint(Sketcher.Constraint("Vertical", 63))
sketch6.addConstraint(Sketcher.Constraint("Horizontal", 65))
sketch6.addConstraint(Sketcher.Constraint("Vertical", 67))
sketch6.addConstraint(Sketcher.Constraint("Vertical", 69))
sketch6.addConstraint(Sketcher.Constraint("Horizontal", 71))
sketch6.addConstraint(Sketcher.Constraint("Vertical", 73))
sketch6.addConstraint(Sketcher.Constraint("Horizontal", 75))
sketch6.addConstraint(Sketcher.Constraint("Equal", 1, 3))
sketch6.addConstraint(Sketcher.Constraint("Equal", 3, 5))
sketch6.addConstraint(Sketcher.Constraint("Equal", 5, 7))
sketch6.addConstraint(Sketcher.Constraint("Equal", 7, 10))
sketch6.addConstraint(Sketcher.Constraint("Equal", 10, 12))
sketch6.addConstraint(Sketcher.Constraint("Equal", 12, 14))
sketch6.addConstraint(Sketcher.Constraint("Equal", 14, 16))
sketch6.addConstraint(Sketcher.Constraint("Equal", 16, 18))
sketch6.addConstraint(Sketcher.Constraint("Equal", 18, 20))
sketch6.addConstraint(Sketcher.Constraint("Equal", 20, 22))
sketch6.addConstraint(Sketcher.Constraint("Equal", 22, 24))
sketch6.addConstraint(Sketcher.Constraint("Equal", 24, 26))
sketch6.addConstraint(Sketcher.Constraint("Equal", 26, 28))
sketch6.addConstraint(Sketcher.Constraint("Equal", 28, 30))
sketch6.addConstraint(Sketcher.Constraint("Equal", 30, 32))
sketch6.addConstraint(Sketcher.Constraint("Equal", 32, 34))
sketch6.addConstraint(Sketcher.Constraint("Equal", 34, 36))
sketch6.addConstraint(Sketcher.Constraint("Equal", 36, 38))
sketch6.addConstraint(Sketcher.Constraint("Equal", 38, 40))
sketch6.addConstraint(Sketcher.Constraint("Equal", 40, 42))
sketch6.addConstraint(Sketcher.Constraint("Equal", 42, 44))
sketch6.addConstraint(Sketcher.Constraint("Equal", 44, 46))
sketch6.addConstraint(Sketcher.Constraint("Equal", 46, 48))
sketch6.addConstraint(Sketcher.Constraint("Equal", 48, 50))
sketch6.addConstraint(Sketcher.Constraint("Equal", 50, 52))
sketch6.addConstraint(Sketcher.Constraint("Equal", 52, 54))
sketch6.addConstraint(Sketcher.Constraint("Equal", 54, 56))
sketch6.addConstraint(Sketcher.Constraint("Equal", 56, 58))
sketch6.addConstraint(Sketcher.Constraint("Equal", 58, 60))
sketch6.addConstraint(Sketcher.Constraint("Equal", 60, 62))
sketch6.addConstraint(Sketcher.Constraint("Equal", 62, 64))
sketch6.addConstraint(Sketcher.Constraint("Equal", 64, 66))
sketch6.addConstraint(Sketcher.Constraint("Equal", 66, 68))
sketch6.addConstraint(Sketcher.Constraint("Equal", 68, 70))
sketch6.addConstraint(Sketcher.Constraint("Equal", 70, 72))
sketch6.addConstraint(Sketcher.Constraint("Equal", 72, 74))
sketch6.addConstraint(Sketcher.Constraint("Equal", 74, 76))
sketch6.addConstraint(Sketcher.Constraint("Vertical", 5, 3, 7, 3))
sketch6.addConstraint(Sketcher.Constraint("Radius", 1, Q("0.0625 in")))
sketch6.addConstraint(Sketcher.Constraint("Radius", 6, 2.72957))
sketch6.addConstraint(Sketcher.Constraint("DistanceX", 19, 2, 19, 1, 3.023102))
sketch6.addConstraint(Sketcher.Constraint("DistanceY", 0, 2, 0, 1, 11.240698))
sketch6.addConstraint(Sketcher.Constraint("DistanceX", -1, 1, 22, 1, Q("1.3622998 in")))
sketch6.addConstraint(Sketcher.Constraint("DistanceX", 29, 1, 29, 2, 5.910569))
sketch6.addConstraint(Sketcher.Constraint("DistanceX", 37, 1, 37, 2, 2.888948))
sketch6.addConstraint(Sketcher.Constraint("DistanceX", 45, 1, 45, 2, 6.162949))
sketch6.addConstraint(Sketcher.Constraint("DistanceX", 71, 2, 71, 1, 5.78872))
sketch6.addConstraint(Sketcher.Constraint("DistanceY", 8, 1, 8, 2, 28.71271))
sketch6.addConstraint(Sketcher.Constraint("DistanceY", 25, 2, 25, 1, 3.87619))
sketch6.addConstraint(Sketcher.Constraint("DistanceY", 31, 1, 31, 2, 2.514859))
sketch6.addConstraint(Sketcher.Constraint("DistanceY", 53, 1, 53, 2, 21.660681))
sketch6.addConstraint(Sketcher.Constraint("DistanceY", 63, 1, 63, 2, 3.12763))
sketch6.addConstraint(Sketcher.Constraint("DistanceX", -1, 1, 10, 3, 5.554402))
sketch6.addConstraint(Sketcher.Constraint("DistanceX", -1, 1, 30, 3, 20.217))
sketch6.addConstraint(Sketcher.Constraint("DistanceX", -1, 1, 38, 3, 29.885101))
sketch6.addConstraint(Sketcher.Constraint("DistanceY", 22, 1, -1, 1, 88.261199))
sketch6.addConstraint(Sketcher.Constraint("Distance", 13, 6.834548))
sketch6.addConstraint(Sketcher.Constraint("Distance", 15, 5.234459))
sketch6.addConstraint(Sketcher.Constraint("DistanceX", 2, 1, 2, 2, 22.348466))
sketch6.addConstraint(Sketcher.Constraint("DistanceX", 9, 2, 9, 1, 21.956615))
sketch6.addConstraint(Sketcher.Constraint("DistanceX", 27, 1, 27, 2, 3.074944))
sketch6.addConstraint(Sketcher.Constraint("DistanceX", 55, 2, 55, 1, 3.187315))
sketch6.addConstraint(Sketcher.Constraint("DistanceX", 61, 1, 61, 2, 35.628423))
sketch6.addConstraint(Sketcher.Constraint("DistanceY", 4, 1, 4, 2, 2.441416))
sketch6.addConstraint(Sketcher.Constraint("DistanceY", 11, 2, 11, 1, 15.673965))
sketch6.addConstraint(Sketcher.Constraint("DistanceY", 17, 1, 17, 2, 7.593693))
sketch6.addConstraint(Sketcher.Constraint("DistanceY", 21, 2, 21, 1, 5.277243))
sketch6.addConstraint(Sketcher.Constraint("DistanceY", 39, 1, 39, 2, 4.935822))
sketch6.addConstraint(Sketcher.Constraint("DistanceY", 47, 1, 47, 2, 3.535153))
sketch6.addConstraint(Sketcher.Constraint("DistanceY", 69, 1, 69, 2, 15.562165))
sketch6.addConstraint(Sketcher.Constraint("DistanceY", 7, 3, -1, 1, 86.314119))
sketch6.addConstraint(Sketcher.Constraint("DistanceX", -1, 1, 16, 3, 39.637878))
sketch6.addConstraint(Sketcher.Constraint("DistanceY", 38, 3, -1, 1, 42.650072))
sketch6.addConstraint(Sketcher.Constraint("DistanceX", -1, 1, 46, 3, 20.406929))
sketch6.addConstraint(Sketcher.Constraint("DistanceY", 46, 3, -1, 1, 31.671578))
sketch6.addConstraint(Sketcher.Constraint("DistanceY", 54, 3, -1, 1, 29.220982))
sketch6.addConstraint(Sketcher.Constraint("DistanceX", -1, 1, 56, 3, 4.736851))
sketch6.addConstraint(Sketcher.Constraint("DistanceX", -1, 1, 62, 3, 40.313091))
sketch6.addConstraint(Sketcher.Constraint("DistanceY", 70, 3, -1, 1, 60.740251))
sketch6.addConstraint(Sketcher.Constraint("DistanceY", 30, 3, -1, 1, 52.528594))
sketch6.addConstraint(Sketcher.Constraint("DistanceY", 62, 3, -1, 1, 23.734073))
sketch6.addConstraint(Sketcher.Constraint("DistanceX", -1, 1, 70, 3, 41.426547))
sketch6.setExpression("Constraints[150]", "Params.sketch6_radius")
pocket4 = body.newObject("PartDesign::Pocket", "Pocket003")
pocket4.Profile = sketch6
pocket4.Type = "ThroughAll"
doc.recompute()

fillet2 = body.newObject("PartDesign::Fillet", "Fillet001")
fillet2.Base = (pocket4, edges_at(pocket4, [(13.465, -57.601, -1.587), (27.511, -80.454, -1.587)]))
fillet2.setExpression("Radius", "Params.fillet2_radius")

doc.recompute()
